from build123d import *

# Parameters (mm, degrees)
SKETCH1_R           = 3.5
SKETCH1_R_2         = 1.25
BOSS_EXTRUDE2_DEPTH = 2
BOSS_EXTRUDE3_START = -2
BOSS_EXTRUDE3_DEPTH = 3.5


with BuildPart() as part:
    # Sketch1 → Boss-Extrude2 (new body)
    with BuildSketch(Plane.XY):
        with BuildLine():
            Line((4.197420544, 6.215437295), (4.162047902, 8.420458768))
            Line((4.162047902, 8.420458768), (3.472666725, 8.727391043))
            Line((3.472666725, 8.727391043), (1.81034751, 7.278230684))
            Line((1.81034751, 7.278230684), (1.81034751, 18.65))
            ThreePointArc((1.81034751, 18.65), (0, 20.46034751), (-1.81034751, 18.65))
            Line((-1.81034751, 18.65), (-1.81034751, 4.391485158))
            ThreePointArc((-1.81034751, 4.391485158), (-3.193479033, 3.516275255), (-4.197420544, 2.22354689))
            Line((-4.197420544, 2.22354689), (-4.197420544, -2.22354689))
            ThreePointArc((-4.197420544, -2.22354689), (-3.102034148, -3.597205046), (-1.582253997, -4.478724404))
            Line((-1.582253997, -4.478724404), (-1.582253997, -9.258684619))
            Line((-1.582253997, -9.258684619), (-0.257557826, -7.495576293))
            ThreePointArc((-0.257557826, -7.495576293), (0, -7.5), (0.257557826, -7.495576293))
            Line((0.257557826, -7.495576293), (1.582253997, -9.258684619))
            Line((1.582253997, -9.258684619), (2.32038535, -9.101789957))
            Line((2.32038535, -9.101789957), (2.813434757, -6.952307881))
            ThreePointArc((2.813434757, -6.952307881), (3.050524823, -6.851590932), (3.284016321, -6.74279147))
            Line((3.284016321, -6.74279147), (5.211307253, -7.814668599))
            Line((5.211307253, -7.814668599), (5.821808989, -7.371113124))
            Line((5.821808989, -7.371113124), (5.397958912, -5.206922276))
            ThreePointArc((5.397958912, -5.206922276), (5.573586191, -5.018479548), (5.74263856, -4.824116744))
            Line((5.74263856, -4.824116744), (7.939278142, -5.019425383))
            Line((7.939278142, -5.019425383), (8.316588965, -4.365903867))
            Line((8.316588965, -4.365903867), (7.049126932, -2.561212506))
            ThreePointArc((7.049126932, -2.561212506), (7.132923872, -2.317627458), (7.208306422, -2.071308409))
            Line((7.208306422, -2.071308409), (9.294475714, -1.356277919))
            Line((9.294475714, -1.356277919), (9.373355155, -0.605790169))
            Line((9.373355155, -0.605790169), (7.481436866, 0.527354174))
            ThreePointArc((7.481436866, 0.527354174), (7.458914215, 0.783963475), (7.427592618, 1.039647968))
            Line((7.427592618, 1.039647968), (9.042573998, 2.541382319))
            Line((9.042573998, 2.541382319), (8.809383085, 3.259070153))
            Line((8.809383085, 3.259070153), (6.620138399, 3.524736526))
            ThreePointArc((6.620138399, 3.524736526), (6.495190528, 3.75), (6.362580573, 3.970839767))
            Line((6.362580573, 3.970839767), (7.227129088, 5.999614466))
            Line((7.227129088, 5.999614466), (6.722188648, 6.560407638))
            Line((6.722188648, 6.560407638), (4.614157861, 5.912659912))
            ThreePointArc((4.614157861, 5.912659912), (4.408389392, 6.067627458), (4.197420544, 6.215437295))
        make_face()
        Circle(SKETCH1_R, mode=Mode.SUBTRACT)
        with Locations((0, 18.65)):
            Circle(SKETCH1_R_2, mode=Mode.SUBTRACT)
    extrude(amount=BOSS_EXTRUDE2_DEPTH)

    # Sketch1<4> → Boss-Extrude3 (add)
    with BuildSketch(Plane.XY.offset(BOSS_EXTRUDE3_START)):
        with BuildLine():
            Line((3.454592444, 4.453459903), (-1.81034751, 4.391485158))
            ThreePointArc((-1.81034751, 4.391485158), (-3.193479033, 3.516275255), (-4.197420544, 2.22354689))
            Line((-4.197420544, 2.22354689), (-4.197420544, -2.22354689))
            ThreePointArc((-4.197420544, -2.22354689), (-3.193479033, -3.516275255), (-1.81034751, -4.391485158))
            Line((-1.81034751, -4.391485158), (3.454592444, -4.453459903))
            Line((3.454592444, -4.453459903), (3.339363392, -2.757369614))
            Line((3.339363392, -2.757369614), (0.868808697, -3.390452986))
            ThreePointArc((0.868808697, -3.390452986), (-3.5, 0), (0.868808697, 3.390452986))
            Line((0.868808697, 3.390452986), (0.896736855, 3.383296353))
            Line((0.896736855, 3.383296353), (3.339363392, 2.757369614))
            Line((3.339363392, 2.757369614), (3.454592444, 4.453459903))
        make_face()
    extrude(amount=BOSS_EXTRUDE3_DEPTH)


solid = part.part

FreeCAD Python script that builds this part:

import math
import FreeCAD as App
import Part
import Sketcher
from FreeCAD import Vector
Q = App.Units.Quantity

doc = App.newDocument("Part")
body = doc.addObject("PartDesign::Body", "Body")

# Sketch on XY plane
sketch1 = doc.addObject("Sketcher::SketchObject", "Sketch")
body.addObject(sketch1)
sketch1.AttachmentSupport = (doc.XY_Plane, [""])
sketch1.MapMode = "FlatFace"
sketch1.addGeometry(Part.LineSegment(Vector(4.2, 6.2, 0), Vector(4.2, 8.4, 0)), False)
sketch1.addGeometry(Part.LineSegment(Vector(4.2, 8.4, 0), Vector(3.5, 8.7, 0)), False)
sketch1.addGeometry(Part.LineSegment(Vector(3.5, 8.7, 0), Vector(1.8, 7.3, 0)), False)
sketch1.addGeometry(Part.LineSegment(Vector(1.8, 7.3, 0), Vector(1.8, 18.6, 0)), False)
sketch1.addGeometry(Part.ArcOfCircle(Part.Circle(Vector(0, 18.6, 0), Vector(0, 0, 1), 1.8), math.radians(0), math.radians(180)), False)
sketch1.addGeometry(Part.LineSegment(Vector(-1.8, 18.6, 0), Vector(-1.8, 4.4, 0)), False)
sketch1.addGeometry(Part.ArcOfCircle(Part.Circle(Vector(0, 0, 0), Vector(0, 0, 1), 4.7), math.radians(112), math.radians(152)), False)
sketch1.addGeometry(Part.LineSegment(Vector(-4.2, 2.2, 0), Vector(-4.2, -2.2, 0)), False)
sketch1.addGeometry(Part.ArcOfCircle(Part.Circle(Vector(0, 0, 0), Vector(0, 0, 1), 4.7), math.radians(-152), math.radians(-109)), False)
sketch1.addGeometry(Part.LineSegment(Vector(-1.6, -4.5, 0), Vector(-1.6, -9.3, 0)), False)
sketch1.addGeometry(Part.LineSegment(Vector(-1.6, -9.3, 0), Vector(-0.3, -7.5, 0)), False)
sketch1.addGeometry(Part.ArcOfCircle(Part.Circle(Vector(0, 0, 0), Vector(0, 0, 1), 7.5), math.radians(-91.97), math.radians(-88.03)), False)
sketch1.addGeometry(Part.LineSegment(Vector(0.3, -7.5, 0), Vector(1.6, -9.3, 0)), False)
sketch1.addGeometry(Part.LineSegment(Vector(1.6, -9.3, 0), Vector(2.3, -9.1, 0)), False)
sketch1.addGeometry(Part.LineSegment(Vector(2.3, -9.1, 0), Vector(2.8, -7, 0)), False)
sketch1.addGeometry(Part.ArcOfCircle(Part.Circle(Vector(0, 0, 0), Vector(0, 0, 1), 7.5), math.radians(-67.97), math.radians(-64.03)), False)
sketch1.addGeometry(Part.LineSegment(Vector(3.3, -6.7, 0), Vector(5.2, -7.8, 0)), False)
sketch1.addGeometry(Part.LineSegment(Vector(5.2, -7.8, 0), Vector(5.8, -7.4, 0)), False)
sketch1.addGeometry(Part.LineSegment(Vector(5.8, -7.4, 0), Vector(5.4, -5.2, 0)), False)
sketch1.addGeometry(Part.ArcOfCircle(Part.Circle(Vector(0, 0, 0), Vector(0, 0, 1), 7.5), math.radians(-43.97), math.radians(-40.03)), False)
sketch1.addGeometry(Part.LineSegment(Vector(5.7, -4.8, 0), Vector(7.9, -5, 0)), False)
sketch1.addGeometry(Part.LineSegment(Vector(7.9, -5, 0), Vector(8.3, -4.4, 0)), False)
sketch1.addGeometry(Part.LineSegment(Vector(8.3, -4.4, 0), Vector(7, -2.6, 0)), False)
sketch1.addGeometry(Part.ArcOfCircle(Part.Circle(Vector(0, 0, 0), Vector(0, 0, 1), 7.5), math.radians(-19.97), math.radians(-16.03)), False)
sketch1.addGeometry(Part.LineSegment(Vector(7.2, -2.1, 0), Vector(9.3, -1.4, 0)), False)
sketch1.addGeometry(Part.LineSegment(Vector(9.3, -1.4, 0), Vector(9.4, -0.6, 0)), False)
sketch1.addGeometry(Part.LineSegment(Vector(9.4, -0.6, 0), Vector(7.5, 0.5, 0)), False)
sketch1.addGeometry(Part.ArcOfCircle(Part.Circle(Vector(0, 0, 0), Vector(0, 0, 1), 7.5), math.radians(4.03), math.radians(7.97)), False)
sketch1.addGeometry(Part.LineSegment(Vector(7.4, 1, 0), Vector(9, 2.5, 0)), False)
sketch1.addGeometry(Part.LineSegment(Vector(9, 2.5, 0), Vector(8.8, 3.3, 0)), False)
sketch1.addGeometry(Part.LineSegment(Vector(8.8, 3.3, 0), Vector(6.6, 3.5, 0)), False)
sketch1.addGeometry(Part.ArcOfCircle(Part.Circle(Vector(0, 0, 0), Vector(0, 0, 1), 7.5), math.radians(28.03), math.radians(31.97)), False)
sketch1.addGeometry(Part.LineSegment(Vector(6.4, 4, 0), Vector(7.2, 6, 0)), False)
sketch1.addGeometry(Part.LineSegment(Vector(7.2, 6, 0), Vector(6.7, 6.6, 0)), False)
sketch1.addGeometry(Part.LineSegment(Vector(6.7, 6.6, 0), Vector(4.6, 5.9, 0)), False)
sketch1.addGeometry(Part.ArcOfCircle(Part.Circle(Vector(0, 0, 0), Vector(0, 0, 1), 7.5), math.radians(52.03), math.radians(55.97)), False)
sketch1.addGeometry(Part.Circle(Vector(0, 0, 0), Vector(0, 0, 1), 3.5), False)
sketch1.addGeometry(Part.Circle(Vector(0, 18.6, 0), Vector(0, 0, 1), 1.2), False)
sketch1.addConstraint(Sketcher.Constraint("Coincident", 0, 2, 1, 1))
sketch1.addConstraint(Sketcher.Constraint("Coincident", 1, 2, 2, 1))
sketch1.addConstraint(Sketcher.Constraint("Coincident", 2, 2, 3, 1))
sketch1.addConstraint(Sketcher.Constraint("Tangent", 3, 2, 4, 1))
sketch1.addConstraint(Sketcher.Constraint("Tangent", 4, 2, 5, 1))
sketch1.addConstraint(Sketcher.Constraint("Coincident", 5, 2, 6, 1))
sketch1.addConstraint(Sketcher.Constraint("Coincident", 6, 2, 7, 1))
sketch1.addConstraint(Sketcher.Constraint("Coincident", 7, 2, 8, 1))
sketch1.addConstraint(Sketcher.Constraint("Coincident", 8, 2, 9, 1))
sketch1.addConstraint(Sketcher.Constraint("Coincident", 9, 2, 10, 1))
sketch1.addConstraint(Sketcher.Constraint("Coincident", 10, 2, 11, 1))
sketch1.addConstraint(Sketcher.Constraint("Coincident", 11, 2, 12, 1))
sketch1.addConstraint(Sketcher.Constraint("Coincident", 12, 2, 13, 1))
sketch1.addConstraint(Sketcher.Constraint("Coincident", 13, 2, 14, 1))
sketch1.addConstraint(Sketcher.Constraint("Coincident", 14, 2, 15, 1))
sketch1.addConstraint(Sketcher.Constraint("Coincident", 15, 2, 16, 1))
sketch1.addConstraint(Sketcher.Constraint("Coincident", 16, 2, 17, 1))
sketch1.addConstraint(Sketcher.Constraint("Coincident", 17, 2, 18, 1))
sketch1.addConstraint(Sketcher.Constraint("Coincident", 18, 2, 19, 1))
sketch1.addConstraint(Sketcher.Constraint("Coincident", 19, 2, 20, 1))
sketch1.addConstraint(Sketcher.Constraint("Coincident", 20, 2, 21, 1))
sketch1.addConstraint(Sketcher.Constraint("Coincident", 21, 2, 22, 1))
sketch1.addConstraint(Sketcher.Constraint("Coincident", 22, 2, 23, 1))
sketch1.addConstraint(Sketcher.Constraint("Coincident", 23, 2, 24, 1))
sketch1.addConstraint(Sketcher.Constraint("Coincident", 24, 2, 25, 1))
sketch1.addConstraint(Sketcher.Constraint("Coincident", 25, 2, 26, 1))
sketch1.addConstraint(Sketcher.Constraint("Coincident", 26, 2, 27, 1))
sketch1.addConstraint(Sketcher.Constraint("Coincident", 27, 2, 28, 1))
sketch1.addConstraint(Sketcher.Constraint("Coincident", 28, 2, 29, 1))
sketch1.addConstraint(Sketcher.Constraint("Coincident", 29, 2, 30, 1))
sketch1.addConstraint(Sketcher.Constraint("Coincident", 30, 2, 31, 1))
sketch1.addConstraint(Sketcher.Constraint("Coincident", 31, 2, 32, 1))
sketch1.addConstraint(Sketcher.Constraint("Coincident", 32, 2, 33, 1))
sketch1.addConstraint(Sketcher.Constraint("Coincident", 33, 2, 34, 1))
sketch1.addConstraint(Sketcher.Constraint("Coincident", 34, 2, 35, 1))
sketch1.addConstraint(Sketcher.Constraint("Coincident", 35, 2, 0, 1))
sketch1.addConstraint(Sketcher.Constraint("Vertical", 3))
sketch1.addConstraint(Sketcher.Constraint("Vertical", 5))
sketch1.addConstraint(Sketcher.Constraint("Vertical", 7))
sketch1.addConstraint(Sketcher.Constraint("Vertical", 9))
sketch1.addConstraint(Sketcher.Constraint("Coincident", 6, 3, -1, 1))
sketch1.addConstraint(Sketcher.Constraint("Coincident", 8, 3, -1, 1))
sketch1.addConstraint(Sketcher.Constraint("Coincident", 11, 3, -1, 1))
sketch1.addConstraint(Sketcher.Constraint("Coincident", 15, 3, -1, 1))
sketch1.addConstraint(Sketcher.Constraint("Coincident", 19, 3, -1, 1))
sketch1.addConstraint(Sketcher.Constraint("Coincident", 23, 3, -1, 1))
sketch1.addConstraint(Sketcher.Constraint("Coincident", 27, 3, -1, 1))
sketch1.addConstraint(Sketcher.Constraint("Coincident", 31, 3, -1, 1))
sketch1.addConstraint(Sketcher.Constraint("Coincident", 35, 3, -1, 1))
sketch1.addConstraint(Sketcher.Constraint("Coincident", 36, 3, -1, 1))
sketch1.addConstraint(Sketcher.Constraint("Coincident", 37, 3, 4, 3))
sketch1.addConstraint(Sketcher.Constraint("Equal", 6, 8))
sketch1.addConstraint(Sketcher.Constraint("Equal", 11, 15))
sketch1.addConstraint(Sketcher.Constraint("Equal", 15, 19))
sketch1.addConstraint(Sketcher.Constraint("Equal", 19, 23))
sketch1.addConstraint(Sketcher.Constraint("Equal", 23, 27))
sketch1.addConstraint(Sketcher.Constraint("Equal", 27, 31))
sketch1.addConstraint(Sketcher.Constraint("Equal", 31, 35))
sketch1.addConstraint(Sketcher.Constraint("Symmetric", 9, 2, 12, 2, -2))
sketch1.addConstraint(Sketcher.Constraint("PointOnObject", 4, 3, -2))
sketch1.addConstraint(Sketcher.Constraint("Horizontal", 10, 2, 11, 2))
sketch1.addConstraint(Sketcher.Constraint("Equal", 0, 2))
sketch1.addConstraint(Sketcher.Constraint("Equal", 2, 10))
sketch1.addConstraint(Sketcher.Constraint("Equal", 1, 13))
sketch1.addConstraint(Sketcher.Constraint("Equal", 12, 14))
sketch1.addConstraint(Sketcher.Constraint("Equal", 14, 16))
sketch1.addConstraint(Sketcher.Constraint("Equal", 13, 17))
sketch1.addConstraint(Sketcher.Constraint("Equal", 16, 18))
sketch1.addConstraint(Sketcher.Constraint("Equal", 18, 20))
sketch1.addConstraint(Sketcher.Constraint("Equal", 17, 21))
sketch1.addConstraint(Sketcher.Constraint("Equal", 20, 22))
sketch1.addConstraint(Sketcher.Constraint("Equal", 22, 24))
sketch1.addConstraint(Sketcher.Constraint("Equal", 21, 25))
sketch1.addConstraint(Sketcher.Constraint("Equal", 24, 26))
sketch1.addConstraint(Sketcher.Constraint("Equal", 26, 28))
sketch1.addConstraint(Sketcher.Constraint("Equal", 25, 29))
sketch1.addConstraint(Sketcher.Constraint("Equal", 28, 30))
sketch1.addConstraint(Sketcher.Constraint("Equal", 30, 32))
sketch1.addConstraint(Sketcher.Constraint("Equal", 29, 33))
sketch1.addConstraint(Sketcher.Constraint("Equal", 32, 34))
sketch1.addConstraint(Sketcher.Constraint("Diameter", 36, 7.0))
sketch1.addConstraint(Sketcher.Constraint("Diameter", 37, 2.5))
sketch1.addConstraint(Sketcher.Constraint("Radius", 11, 7.5))
sketch1.addConstraint(Sketcher.Constraint("Angle", 1, Q("156 deg")))
sketch1.addConstraint(Sketcher.Constraint("Angle", 13, Q("12 deg")))
sketch1.addConstraint(Sketcher.Constraint("Angle", 17, Q("36 deg")))
sketch1.addConstraint(Sketcher.Constraint("Angle", 21, Q("60 deg")))
sketch1.addConstraint(Sketcher.Constraint("Angle", 25, Q("84 deg")))
sketch1.addConstraint(Sketcher.Constraint("Angle", 29, Q("108 deg")))
sketch1.addConstraint(Sketcher.Constraint("Angle", 33, Q("132 deg")))
sketch1.addConstraint(Sketcher.Constraint("Radius", 6, 4.75))
sketch1.addConstraint(Sketcher.Constraint("DistanceY", -1, 1, 4, 3, 18.65))
sketch1.addConstraint(Sketcher.Constraint("Radius", 4, 1.810348))
sketch1.addConstraint(Sketcher.Constraint("DistanceY", 13, 2, 15, 2, 2.358998))
sketch1.addConstraint(Sketcher.Constraint("DistanceY", 3, 1, 3, 2, 11.371769))
sketch1.addConstraint(Sketcher.Constraint("DistanceY", 9, 2, 9, 1, 4.77996))
sketch1.addConstraint(Sketcher.Constraint("DistanceX", 2, 2, 0, 2, 2.3517))
sketch1.addConstraint(Sketcher.Constraint("DistanceX", 16, 2, 17, 2, 0.610502))
sketch1.addConstraint(Sketcher.Constraint("DistanceY", 17, 2, 22, 2, 4.809901))
sketch1.addConstraint(Sketcher.Constraint("DistanceX", 28, 2, 24, 2, 0.251902))
sketch1.addConstraint(Sketcher.Constraint("DistanceX", 30, 2, 26, 2, 0.861298))
sketch1.addConstraint(Sketcher.Constraint("DistanceY", 34, 2, 0, 2, 2.507799))
sketch1.addConstraint(Sketcher.Constraint("DistanceY", 7, 2, 7, 1, 4.447094))
sketch1.addConstraint(Sketcher.Constraint("DistanceY", -1, 1, 0, 2, 8.420459))
sketch1.addConstraint(Sketcher.Constraint("DistanceY", 13, 2, -1, 1, 9.10179))
sketch1.addConstraint(Sketcher.Constraint("DistanceY", 16, 2, -1, 1, 7.814669))
sketch1.addConstraint(Sketcher.Constraint("DistanceX", -1, 1, 19, 2, 5.742639))
sketch1.addConstraint(Sketcher.Constraint("DistanceY", 23, 2, -1, 1, 2.071308))
sketch1.addConstraint(Sketcher.Constraint("DistanceY", 25, 2, -1, 1, 0.60579))
sketch1.addConstraint(Sketcher.Constraint("DistanceX", -1, 1, 31, 2, 6.362581))
pad1 = doc.addObject("PartDesign::Pad", "Pad")
body.addObject(pad1)
pad1.Profile = sketch1
pad1.Length = 2

# Sketch on XY plane
sketch2 = doc.addObject("Sketcher::SketchObject", "Sketch001")
body.addObject(sketch2)
sketch2.AttachmentSupport = (doc.XY_Plane, [""])
sketch2.MapMode = "FlatFace"
sketch2.AttachmentOffset = App.Placement(Vector(0, 0, -2), App.Rotation())
sketch2.addGeometry(Part.LineSegment(Vector(3.455, 4.453, 0), Vector(-1.81, 4.391, 0)), False)
sketch2.addGeometry(Part.ArcOfCircle(Part.Circle(Vector(0, 0, 0), Vector(0, 0, 1), 4.75), math.radians(112), math.radians(152)), False)
sketch2.addGeometry(Part.LineSegment(Vector(-4.197, 2.224, 0), Vector(-4.197, -2.224, 0)), False)
sketch2.addGeometry(Part.ArcOfCircle(Part.Circle(Vector(0, 0, 0), Vector(0, 0, 1), 4.75), math.radians(-152), math.radians(-112)), False)
sketch2.addGeometry(Part.LineSegment(Vector(-1.81, -4.391, 0), Vector(3.455, -4.453, 0)), False)
sketch2.addGeometry(Part.LineSegment(Vector(3.455, -4.453, 0), Vector(3.339, -2.757, 0)), False)
sketch2.addGeometry(Part.LineSegment(Vector(3.339, -2.757, 0), Vector(0.869, -3.39, 0)), False)
sketch2.addGeometry(Part.ArcOfCircle(Part.Circle(Vector(0, 0, 0), Vector(0, 0, 1), 3.5), math.radians(76), math.radians(284)), False)
sketch2.addGeometry(Part.LineSegment(Vector(0.869, 3.39, 0), Vector(0.897, 3.383, 0)), False)
sketch2.addGeometry(Part.LineSegment(Vector(0.897, 3.383, 0), Vector(3.339, 2.757, 0)), False)
sketch2.addGeometry(Part.LineSegment(Vector(3.339, 2.757, 0), Vector(3.455, 4.453, 0)), False)
sketch2.addConstraint(Sketcher.Constraint("Coincident", 0, 2, 1, 1))
sketch2.addConstraint(Sketcher.Constraint("Coincident", 1, 2, 2, 1))
sketch2.addConstraint(Sketcher.Constraint("Coincident", 2, 2, 3, 1))
sketch2.addConstraint(Sketcher.Constraint("Coincident", 3, 2, 4, 1))
sketch2.addConstraint(Sketcher.Constraint("Coincident", 4, 2, 5, 1))
sketch2.addConstraint(Sketcher.Constraint("Coincident", 5, 2, 6, 1))
sketch2.addConstraint(Sketcher.Constraint("Tangent", 6, 2, 7, 2))
sketch2.addConstraint(Sketcher.Constraint("Tangent", 7, 1, 8, 1))
sketch2.addConstraint(Sketcher.Constraint("Coincident", 8, 2, 9, 1))
sketch2.addConstraint(Sketcher.Constraint("Coincident", 9, 2, 10, 1))
sketch2.addConstraint(Sketcher.Constraint("Coincident", 10, 2, 0, 1))
sketch2.addConstraint(Sketcher.Constraint("Vertical", 2))
sketch2.addConstraint(Sketcher.Constraint("Coincident", 1, 3, -1, 1))
sketch2.addConstraint(Sketcher.Constraint("Coincident", 3, 3, -1, 1))
sketch2.addConstraint(Sketcher.Constraint("Coincident", 7, 3, -1, 1))
sketch2.addConstraint(Sketcher.Constraint("Equal", 1, 3))
sketch2.addConstraint(Sketcher.Constraint("Symmetric", 5, 2, 9, 2, -1))
sketch2.addConstraint(Sketcher.Constraint("Symmetric", 4, 2, 10, 2, -1))
sketch2.addConstraint(Sketcher.Constraint("Parallel", 8, 9))
sketch2.addConstraint(Sketcher.Constraint("Vertical", 0, 2, 3, 2))
sketch2.addConstraint(Sketcher.Constraint("Radius", 7, 3.5))
sketch2.addConstraint(Sketcher.Constraint("Radius", 1, 4.75))
sketch2.addConstraint(Sketcher.Constraint("Distance", 5, 1.7))
sketch2.addConstraint(Sketcher.Constraint("Distance", 6, 2.550379))
sketch2.addConstraint(Sketcher.Constraint("Distance", 8, 0.028831))
sketch2.addConstraint(Sketcher.Constraint("DistanceY", 2, 2, 2, 1, 4.447094))
sketch2.addConstraint(Sketcher.Constraint("DistanceY", 4, 2, -1, 1, 4.45346))
sketch2.addConstraint(Sketcher.Constraint("DistanceY", 5, 2, -1, 1, 2.75737))
sketch2.addConstraint(Sketcher.Constraint("DistanceY", 1, 2, 0, 2, 2.167938))
pad2 = doc.addObject("PartDesign::Pad", "Pad001")
body.addObject(pad2)
pad2.Profile = sketch2
pad2.Length = 3.5

doc.recompute()
